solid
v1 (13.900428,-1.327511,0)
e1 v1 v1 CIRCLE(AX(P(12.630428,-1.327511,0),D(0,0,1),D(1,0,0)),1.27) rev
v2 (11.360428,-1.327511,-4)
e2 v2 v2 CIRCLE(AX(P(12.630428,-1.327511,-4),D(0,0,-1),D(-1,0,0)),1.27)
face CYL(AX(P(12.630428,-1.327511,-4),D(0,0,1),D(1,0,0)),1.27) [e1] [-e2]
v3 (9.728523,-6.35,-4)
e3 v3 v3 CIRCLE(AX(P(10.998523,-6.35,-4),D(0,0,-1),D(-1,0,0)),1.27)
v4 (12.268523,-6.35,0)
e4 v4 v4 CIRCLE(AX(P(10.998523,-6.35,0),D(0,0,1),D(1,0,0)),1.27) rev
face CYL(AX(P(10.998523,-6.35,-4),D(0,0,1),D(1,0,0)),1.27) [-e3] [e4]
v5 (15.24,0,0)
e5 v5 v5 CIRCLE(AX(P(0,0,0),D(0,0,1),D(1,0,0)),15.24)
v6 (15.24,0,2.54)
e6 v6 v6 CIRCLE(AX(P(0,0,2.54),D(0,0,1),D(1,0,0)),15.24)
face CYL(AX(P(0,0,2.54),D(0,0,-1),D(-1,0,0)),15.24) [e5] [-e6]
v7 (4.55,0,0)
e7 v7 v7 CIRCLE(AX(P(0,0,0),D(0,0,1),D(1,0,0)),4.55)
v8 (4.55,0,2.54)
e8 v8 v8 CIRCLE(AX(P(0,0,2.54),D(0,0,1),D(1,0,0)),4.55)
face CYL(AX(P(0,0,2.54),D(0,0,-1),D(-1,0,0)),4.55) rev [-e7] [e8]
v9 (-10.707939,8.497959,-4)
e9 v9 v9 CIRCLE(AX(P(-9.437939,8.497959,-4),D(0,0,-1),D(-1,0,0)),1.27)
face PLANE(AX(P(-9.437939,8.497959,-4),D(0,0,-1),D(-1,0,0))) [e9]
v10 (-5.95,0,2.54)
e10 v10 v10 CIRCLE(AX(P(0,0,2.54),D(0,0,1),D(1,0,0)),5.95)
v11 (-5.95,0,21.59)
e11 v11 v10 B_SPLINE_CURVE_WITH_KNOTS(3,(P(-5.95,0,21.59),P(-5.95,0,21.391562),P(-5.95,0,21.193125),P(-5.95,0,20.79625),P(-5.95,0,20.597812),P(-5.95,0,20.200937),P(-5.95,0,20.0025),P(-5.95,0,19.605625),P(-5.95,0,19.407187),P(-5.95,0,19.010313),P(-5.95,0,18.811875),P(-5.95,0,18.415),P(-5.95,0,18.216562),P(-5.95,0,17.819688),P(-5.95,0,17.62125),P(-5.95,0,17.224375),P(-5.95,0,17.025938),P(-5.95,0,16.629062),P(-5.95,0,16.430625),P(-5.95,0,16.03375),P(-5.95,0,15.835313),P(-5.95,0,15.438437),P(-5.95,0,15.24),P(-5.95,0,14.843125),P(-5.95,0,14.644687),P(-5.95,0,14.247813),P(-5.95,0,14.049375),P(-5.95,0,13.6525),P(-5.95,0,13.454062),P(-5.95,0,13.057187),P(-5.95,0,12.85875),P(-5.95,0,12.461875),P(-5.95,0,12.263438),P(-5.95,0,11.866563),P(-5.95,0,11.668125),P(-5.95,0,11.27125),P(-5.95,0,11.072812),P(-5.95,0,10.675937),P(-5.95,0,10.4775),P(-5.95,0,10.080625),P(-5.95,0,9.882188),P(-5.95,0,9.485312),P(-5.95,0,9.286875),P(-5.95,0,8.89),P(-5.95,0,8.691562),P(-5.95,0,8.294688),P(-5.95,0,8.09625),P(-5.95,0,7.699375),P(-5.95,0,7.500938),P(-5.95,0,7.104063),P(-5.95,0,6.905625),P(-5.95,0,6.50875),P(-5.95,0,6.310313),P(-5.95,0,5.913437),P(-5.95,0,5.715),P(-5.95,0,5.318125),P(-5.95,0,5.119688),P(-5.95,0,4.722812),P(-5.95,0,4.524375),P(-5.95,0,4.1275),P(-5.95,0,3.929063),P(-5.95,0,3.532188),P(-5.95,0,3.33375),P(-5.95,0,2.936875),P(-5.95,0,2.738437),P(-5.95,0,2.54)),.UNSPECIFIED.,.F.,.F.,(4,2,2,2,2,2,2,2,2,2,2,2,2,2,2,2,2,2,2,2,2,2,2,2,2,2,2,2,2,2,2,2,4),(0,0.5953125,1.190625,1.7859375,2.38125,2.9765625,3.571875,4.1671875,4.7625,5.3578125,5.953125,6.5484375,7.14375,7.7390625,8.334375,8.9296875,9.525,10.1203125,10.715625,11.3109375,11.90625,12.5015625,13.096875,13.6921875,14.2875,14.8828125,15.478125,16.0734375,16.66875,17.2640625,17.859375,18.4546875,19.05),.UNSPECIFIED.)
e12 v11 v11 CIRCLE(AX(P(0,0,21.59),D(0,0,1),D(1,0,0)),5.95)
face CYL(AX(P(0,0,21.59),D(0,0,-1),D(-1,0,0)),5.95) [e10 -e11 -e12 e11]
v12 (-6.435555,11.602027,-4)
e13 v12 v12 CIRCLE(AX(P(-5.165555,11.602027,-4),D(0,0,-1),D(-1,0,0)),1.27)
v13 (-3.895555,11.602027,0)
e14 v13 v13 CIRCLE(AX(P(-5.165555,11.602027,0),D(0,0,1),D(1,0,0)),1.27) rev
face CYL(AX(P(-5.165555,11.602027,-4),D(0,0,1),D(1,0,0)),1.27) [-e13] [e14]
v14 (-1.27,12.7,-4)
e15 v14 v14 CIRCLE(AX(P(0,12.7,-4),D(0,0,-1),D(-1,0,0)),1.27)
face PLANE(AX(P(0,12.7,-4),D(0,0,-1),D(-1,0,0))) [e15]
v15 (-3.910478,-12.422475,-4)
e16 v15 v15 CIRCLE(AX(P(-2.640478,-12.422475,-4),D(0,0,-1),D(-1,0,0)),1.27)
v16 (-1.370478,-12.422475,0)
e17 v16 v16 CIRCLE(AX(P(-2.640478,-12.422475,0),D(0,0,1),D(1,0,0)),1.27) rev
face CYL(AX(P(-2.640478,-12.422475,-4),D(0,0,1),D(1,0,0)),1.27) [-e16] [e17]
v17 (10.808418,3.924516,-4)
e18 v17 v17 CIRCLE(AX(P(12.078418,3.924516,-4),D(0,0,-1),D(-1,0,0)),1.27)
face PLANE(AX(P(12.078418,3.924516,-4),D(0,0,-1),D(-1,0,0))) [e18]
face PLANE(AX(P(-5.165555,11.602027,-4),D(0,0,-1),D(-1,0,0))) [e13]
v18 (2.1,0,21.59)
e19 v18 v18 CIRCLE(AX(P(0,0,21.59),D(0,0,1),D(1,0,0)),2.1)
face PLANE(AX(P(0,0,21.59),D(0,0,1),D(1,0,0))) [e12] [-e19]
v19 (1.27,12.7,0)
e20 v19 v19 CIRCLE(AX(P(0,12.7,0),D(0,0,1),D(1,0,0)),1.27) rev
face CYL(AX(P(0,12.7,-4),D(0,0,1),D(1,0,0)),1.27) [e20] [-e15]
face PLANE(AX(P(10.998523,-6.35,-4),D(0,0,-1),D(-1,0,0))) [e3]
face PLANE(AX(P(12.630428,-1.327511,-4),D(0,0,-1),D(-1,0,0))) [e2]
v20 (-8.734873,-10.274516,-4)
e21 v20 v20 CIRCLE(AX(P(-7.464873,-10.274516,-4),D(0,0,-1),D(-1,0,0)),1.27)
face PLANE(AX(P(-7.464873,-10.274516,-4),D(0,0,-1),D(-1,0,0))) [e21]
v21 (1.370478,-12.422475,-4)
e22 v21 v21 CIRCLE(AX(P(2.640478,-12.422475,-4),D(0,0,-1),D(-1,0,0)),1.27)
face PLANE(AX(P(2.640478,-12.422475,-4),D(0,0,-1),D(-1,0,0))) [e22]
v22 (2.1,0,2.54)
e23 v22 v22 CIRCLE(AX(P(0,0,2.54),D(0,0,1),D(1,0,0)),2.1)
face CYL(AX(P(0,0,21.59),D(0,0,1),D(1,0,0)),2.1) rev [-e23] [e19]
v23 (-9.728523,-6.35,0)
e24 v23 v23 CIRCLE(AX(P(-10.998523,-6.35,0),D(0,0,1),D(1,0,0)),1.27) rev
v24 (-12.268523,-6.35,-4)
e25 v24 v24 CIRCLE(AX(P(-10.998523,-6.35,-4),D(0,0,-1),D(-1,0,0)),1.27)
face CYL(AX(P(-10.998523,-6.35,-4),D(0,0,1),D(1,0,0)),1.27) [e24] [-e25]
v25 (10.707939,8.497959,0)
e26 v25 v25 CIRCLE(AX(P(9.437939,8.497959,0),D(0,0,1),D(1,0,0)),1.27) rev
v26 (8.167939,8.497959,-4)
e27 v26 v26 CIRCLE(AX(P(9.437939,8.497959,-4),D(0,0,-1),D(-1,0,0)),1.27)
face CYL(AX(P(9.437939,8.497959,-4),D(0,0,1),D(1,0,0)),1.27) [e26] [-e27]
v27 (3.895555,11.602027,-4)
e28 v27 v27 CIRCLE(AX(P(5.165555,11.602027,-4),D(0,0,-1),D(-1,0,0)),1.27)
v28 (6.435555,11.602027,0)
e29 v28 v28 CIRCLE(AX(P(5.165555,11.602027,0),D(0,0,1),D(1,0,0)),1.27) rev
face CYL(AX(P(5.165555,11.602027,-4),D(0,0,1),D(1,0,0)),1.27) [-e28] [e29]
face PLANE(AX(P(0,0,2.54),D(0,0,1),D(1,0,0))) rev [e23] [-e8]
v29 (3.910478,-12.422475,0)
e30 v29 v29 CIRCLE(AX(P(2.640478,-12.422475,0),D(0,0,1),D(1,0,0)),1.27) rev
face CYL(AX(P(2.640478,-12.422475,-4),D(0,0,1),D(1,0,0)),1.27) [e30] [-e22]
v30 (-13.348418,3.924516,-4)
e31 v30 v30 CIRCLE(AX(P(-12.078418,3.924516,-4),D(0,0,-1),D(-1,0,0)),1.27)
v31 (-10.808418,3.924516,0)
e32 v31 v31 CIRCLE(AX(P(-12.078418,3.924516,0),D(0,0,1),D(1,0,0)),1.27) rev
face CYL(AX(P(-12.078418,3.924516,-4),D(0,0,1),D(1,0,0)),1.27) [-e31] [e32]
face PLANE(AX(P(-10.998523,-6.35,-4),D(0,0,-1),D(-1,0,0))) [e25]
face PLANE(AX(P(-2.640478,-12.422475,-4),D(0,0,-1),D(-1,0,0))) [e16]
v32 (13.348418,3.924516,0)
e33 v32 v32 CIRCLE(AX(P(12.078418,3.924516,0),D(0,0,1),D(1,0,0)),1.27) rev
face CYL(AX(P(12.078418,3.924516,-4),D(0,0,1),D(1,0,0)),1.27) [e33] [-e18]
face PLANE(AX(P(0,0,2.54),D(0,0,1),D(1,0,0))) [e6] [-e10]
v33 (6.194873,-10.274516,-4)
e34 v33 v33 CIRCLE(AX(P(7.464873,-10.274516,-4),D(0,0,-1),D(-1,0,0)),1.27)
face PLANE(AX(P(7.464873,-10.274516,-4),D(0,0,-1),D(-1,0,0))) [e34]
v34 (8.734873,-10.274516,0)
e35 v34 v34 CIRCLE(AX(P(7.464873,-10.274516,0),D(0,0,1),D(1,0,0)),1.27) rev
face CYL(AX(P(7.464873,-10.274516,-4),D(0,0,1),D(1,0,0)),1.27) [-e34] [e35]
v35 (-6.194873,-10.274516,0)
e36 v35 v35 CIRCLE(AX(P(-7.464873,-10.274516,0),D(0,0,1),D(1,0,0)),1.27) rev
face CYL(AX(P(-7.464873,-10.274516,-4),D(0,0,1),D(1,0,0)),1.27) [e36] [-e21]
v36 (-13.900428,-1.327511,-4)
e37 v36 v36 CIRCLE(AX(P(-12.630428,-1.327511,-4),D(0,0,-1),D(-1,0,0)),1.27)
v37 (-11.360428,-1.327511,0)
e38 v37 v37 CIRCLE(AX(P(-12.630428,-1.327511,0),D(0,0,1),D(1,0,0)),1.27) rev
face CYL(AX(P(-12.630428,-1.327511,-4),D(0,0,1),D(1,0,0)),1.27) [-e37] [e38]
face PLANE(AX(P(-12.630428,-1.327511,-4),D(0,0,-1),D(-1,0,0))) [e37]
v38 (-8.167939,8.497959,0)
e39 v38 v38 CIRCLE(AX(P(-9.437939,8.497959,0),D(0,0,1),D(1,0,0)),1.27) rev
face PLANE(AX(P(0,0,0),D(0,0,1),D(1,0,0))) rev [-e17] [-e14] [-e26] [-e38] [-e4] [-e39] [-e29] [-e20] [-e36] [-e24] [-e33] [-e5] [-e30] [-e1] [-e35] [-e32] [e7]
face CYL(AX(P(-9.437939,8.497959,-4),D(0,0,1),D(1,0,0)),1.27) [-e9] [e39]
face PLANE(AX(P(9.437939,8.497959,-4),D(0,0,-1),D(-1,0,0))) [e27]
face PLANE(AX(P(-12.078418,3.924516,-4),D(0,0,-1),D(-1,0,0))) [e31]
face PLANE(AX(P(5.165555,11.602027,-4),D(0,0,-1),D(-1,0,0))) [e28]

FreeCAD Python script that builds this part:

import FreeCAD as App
import Part
import Sketcher
from FreeCAD import Vector
Q = App.Units.Quantity

doc = App.newDocument("Part")
body = doc.addObject("PartDesign::Body", "Body")

# Sketch on XY plane
sketch1 = body.newObject("Sketcher::SketchObject", "Sketch")
sketch1.AttachmentSupport = (doc.getObject("XY_Plane"), [""])
sketch1.MapMode = "FlatFace"
sketch1.addGeometry([
    Part.Circle(Vector(0, 0, 0), Vector(0, 0, 1), 15.2),
    Part.Circle(Vector(0, 0, 0), Vector(0, 0, 1), 4.5),
], False)
sketch1.addConstraint([
    Sketcher.Constraint("Coincident", 0, 3, -1, 1),
    Sketcher.Constraint("Coincident", 1, 3, -1, 1),
    Sketcher.Constraint("Diameter", 1, Q("9.1 mm")),
    Sketcher.Constraint("Diameter", 0, Q("30.48 mm")),
])
pad1 = body.newObject("PartDesign::Pad", "Pad")
pad1.Profile = sketch1
pad1.Length = 2.54

# Sketch on XY plane
sketch2 = body.newObject("Sketcher::SketchObject", "Sketch001")
sketch2.AttachmentSupport = (doc.getObject("XY_Plane"), [""])
sketch2.MapMode = "FlatFace"
sketch2.AttachmentOffset = App.Placement(Vector(0, 0, 2.54), App.Rotation())
sketch2.addGeometry(Part.Circle(Vector(0, 0, 0), Vector(0, 0, 1), 6), False)
sketch2.addConstraint([
    Sketcher.Constraint("Coincident", 0, 3, -1, 1),
    Sketcher.Constraint("Diameter", 0, Q("11.9 mm")),
])
pad2 = body.newObject("PartDesign::Pad", "Pad001")
pad2.Profile = sketch2
pad2.Length = 19.05

# Sketch on XY plane
sketch3 = body.newObject("Sketcher::SketchObject", "Sketch002")
sketch3.AttachmentSupport = (doc.getObject("XY_Plane"), [""])
sketch3.MapMode = "FlatFace"
sketch3.addGeometry([
    Part.Circle(Vector(0, 12.7, 0), Vector(0, 0, 1), 1.3),  # 0
    Part.Circle(Vector(-5.2, 11.6, 0), Vector(0, 0, 1), 1.3),  # 1
    Part.Circle(Vector(-9.4, 8.5, 0), Vector(0, 0, 1), 1.3),  # 2
    Part.Circle(Vector(-12.1, 3.9, 0), Vector(0, 0, 1), 1.3),  # 3
    Part.Circle(Vector(-12.6, -1.3, 0), Vector(0, 0, 1), 1.3),  # 4
    Part.Circle(Vector(-11, -6.3, 0), Vector(0, 0, 1), 1.3),  # 5
    Part.Circle(Vector(-7.5, -10.3, 0), Vector(0, 0, 1), 1.3),  # 6
    Part.Circle(Vector(-2.6, -12.4, 0), Vector(0, 0, 1), 1.3),  # 7
    Part.Circle(Vector(2.6, -12.4, 0), Vector(0, 0, 1), 1.3),  # 8
    Part.Circle(Vector(7.5, -10.3, 0), Vector(0, 0, 1), 1.3),  # 9
    Part.Circle(Vector(11, -6.3, 0), Vector(0, 0, 1), 1.3),  # 10
    Part.Circle(Vector(12.6, -1.3, 0), Vector(0, 0, 1), 1.3),  # 11
    Part.Circle(Vector(12.1, 3.9, 0), Vector(0, 0, 1), 1.3),  # 12
    Part.Circle(Vector(9.4, 8.5, 0), Vector(0, 0, 1), 1.3),  # 13
    Part.Circle(Vector(5.2, 11.6, 0), Vector(0, 0, 1), 1.3),  # 14
], False)
sketch3.addConstraint([
    Sketcher.Constraint("Equal", 0, 1),
    Sketcher.Constraint("Equal", 1, 2),
    Sketcher.Constraint("Equal", 2, 3),
    Sketcher.Constraint("Equal", 3, 4),
    Sketcher.Constraint("Equal", 4, 5),
    Sketcher.Constraint("Equal", 5, 6),
    Sketcher.Constraint("Equal", 6, 7),
    Sketcher.Constraint("Equal", 7, 8),
    Sketcher.Constraint("Equal", 8, 9),
    Sketcher.Constraint("Equal", 9, 10),
    Sketcher.Constraint("Equal", 10, 11),
    Sketcher.Constraint("Equal", 11, 12),
    Sketcher.Constraint("Equal", 12, 13),
    Sketcher.Constraint("Equal", 13, 14),
    Sketcher.Constraint("Symmetric", 7, 3, 8, 3, -2),
    Sketcher.Constraint("Symmetric", 6, 3, 9, 3, -2),
    Sketcher.Constraint("Symmetric", 5, 3, 10, 3, -2),
    Sketcher.Constraint("Symmetric", 4, 3, 11, 3, -2),
    Sketcher.Constraint("Symmetric", 3, 3, 12, 3, -2),
    Sketcher.Constraint("Symmetric", 2, 3, 13, 3, -2),
    Sketcher.Constraint("Symmetric", 1, 3, 14, 3, -2),
    Sketcher.Constraint("PointOnObject", 0, 3, -2),
    Sketcher.Constraint("Diameter", 0, Q("2.54 mm")),
    Sketcher.Constraint("DistanceY", -1, 1, 0, 3, Q("12.7 mm")),
    Sketcher.Constraint("DistanceY", 5, 3, -1, 1, Q("6.35 mm")),
    Sketcher.Constraint("DistanceX", 5, 3, 8, 3, Q("13.639001 mm")),
    Sketcher.Constraint("DistanceX", 4, 3, 9, 3, Q("20.095301 mm")),
    Sketcher.Constraint("DistanceX", 2, 3, -1, 1, Q("9.437939 mm")),
    Sketcher.Constraint("DistanceY", -1, 1, 2, 3, Q("8.497959 mm")),
    Sketcher.Constraint("DistanceX", 4, 3, -1, 1, Q("12.630428 mm")),
    Sketcher.Constraint("DistanceY", 4, 3, -1, 1, Q("1.327511 mm")),
    Sketcher.Constraint("DistanceX", 7, 3, -1, 1, Q("2.640478 mm")),
    Sketcher.Constraint("DistanceY", 2, 3, 1, 3, Q("3.104069 mm")),
    Sketcher.Constraint("DistanceX", 3, 3, 2, 3, Q("2.640478 mm")),
    Sketcher.Constraint("DistanceY", 3, 3, 1, 3, Q("7.677511 mm")),
    Sketcher.Constraint("DistanceY", 6, 3, 3, 3, Q("14.199032 mm")),
    Sketcher.Constraint("DistanceY", 7, 3, 6, 3, Q("2.147959 mm")),
    Sketcher.Constraint("DistanceX", 1, 3, 14, 3, Q("10.331111 mm")),
])
pad3 = body.newObject("PartDesign::Pad", "Pad002")
pad3.Profile = sketch3
pad3.Length = 4
pad3.Reversed = True

# Sketch on XY plane
sketch4 = body.newObject("Sketcher::SketchObject", "Sketch003")
sketch4.AttachmentSupport = (doc.getObject("XY_Plane"), [""])
sketch4.MapMode = "FlatFace"
sketch4.AttachmentOffset = App.Placement(Vector(0, 0, 21.59), App.Rotation())
sketch4.addGeometry(Part.Circle(Vector(0, 0, 0), Vector(0, 0, 1), 2.1), False)
sketch4.addConstraint([
    Sketcher.Constraint("Coincident", 0, 3, -1, 1),
    Sketcher.Constraint("Diameter", 0, Q("4.2 mm")),
])
doc.recompute()
hole = body.newObject("PartDesign::Hole", "Hole")
hole.Profile = sketch4
hole.ThreadType = "None"
hole.Diameter = 4.2
hole.DepthType = "ThroughAll"

doc.recompute()
